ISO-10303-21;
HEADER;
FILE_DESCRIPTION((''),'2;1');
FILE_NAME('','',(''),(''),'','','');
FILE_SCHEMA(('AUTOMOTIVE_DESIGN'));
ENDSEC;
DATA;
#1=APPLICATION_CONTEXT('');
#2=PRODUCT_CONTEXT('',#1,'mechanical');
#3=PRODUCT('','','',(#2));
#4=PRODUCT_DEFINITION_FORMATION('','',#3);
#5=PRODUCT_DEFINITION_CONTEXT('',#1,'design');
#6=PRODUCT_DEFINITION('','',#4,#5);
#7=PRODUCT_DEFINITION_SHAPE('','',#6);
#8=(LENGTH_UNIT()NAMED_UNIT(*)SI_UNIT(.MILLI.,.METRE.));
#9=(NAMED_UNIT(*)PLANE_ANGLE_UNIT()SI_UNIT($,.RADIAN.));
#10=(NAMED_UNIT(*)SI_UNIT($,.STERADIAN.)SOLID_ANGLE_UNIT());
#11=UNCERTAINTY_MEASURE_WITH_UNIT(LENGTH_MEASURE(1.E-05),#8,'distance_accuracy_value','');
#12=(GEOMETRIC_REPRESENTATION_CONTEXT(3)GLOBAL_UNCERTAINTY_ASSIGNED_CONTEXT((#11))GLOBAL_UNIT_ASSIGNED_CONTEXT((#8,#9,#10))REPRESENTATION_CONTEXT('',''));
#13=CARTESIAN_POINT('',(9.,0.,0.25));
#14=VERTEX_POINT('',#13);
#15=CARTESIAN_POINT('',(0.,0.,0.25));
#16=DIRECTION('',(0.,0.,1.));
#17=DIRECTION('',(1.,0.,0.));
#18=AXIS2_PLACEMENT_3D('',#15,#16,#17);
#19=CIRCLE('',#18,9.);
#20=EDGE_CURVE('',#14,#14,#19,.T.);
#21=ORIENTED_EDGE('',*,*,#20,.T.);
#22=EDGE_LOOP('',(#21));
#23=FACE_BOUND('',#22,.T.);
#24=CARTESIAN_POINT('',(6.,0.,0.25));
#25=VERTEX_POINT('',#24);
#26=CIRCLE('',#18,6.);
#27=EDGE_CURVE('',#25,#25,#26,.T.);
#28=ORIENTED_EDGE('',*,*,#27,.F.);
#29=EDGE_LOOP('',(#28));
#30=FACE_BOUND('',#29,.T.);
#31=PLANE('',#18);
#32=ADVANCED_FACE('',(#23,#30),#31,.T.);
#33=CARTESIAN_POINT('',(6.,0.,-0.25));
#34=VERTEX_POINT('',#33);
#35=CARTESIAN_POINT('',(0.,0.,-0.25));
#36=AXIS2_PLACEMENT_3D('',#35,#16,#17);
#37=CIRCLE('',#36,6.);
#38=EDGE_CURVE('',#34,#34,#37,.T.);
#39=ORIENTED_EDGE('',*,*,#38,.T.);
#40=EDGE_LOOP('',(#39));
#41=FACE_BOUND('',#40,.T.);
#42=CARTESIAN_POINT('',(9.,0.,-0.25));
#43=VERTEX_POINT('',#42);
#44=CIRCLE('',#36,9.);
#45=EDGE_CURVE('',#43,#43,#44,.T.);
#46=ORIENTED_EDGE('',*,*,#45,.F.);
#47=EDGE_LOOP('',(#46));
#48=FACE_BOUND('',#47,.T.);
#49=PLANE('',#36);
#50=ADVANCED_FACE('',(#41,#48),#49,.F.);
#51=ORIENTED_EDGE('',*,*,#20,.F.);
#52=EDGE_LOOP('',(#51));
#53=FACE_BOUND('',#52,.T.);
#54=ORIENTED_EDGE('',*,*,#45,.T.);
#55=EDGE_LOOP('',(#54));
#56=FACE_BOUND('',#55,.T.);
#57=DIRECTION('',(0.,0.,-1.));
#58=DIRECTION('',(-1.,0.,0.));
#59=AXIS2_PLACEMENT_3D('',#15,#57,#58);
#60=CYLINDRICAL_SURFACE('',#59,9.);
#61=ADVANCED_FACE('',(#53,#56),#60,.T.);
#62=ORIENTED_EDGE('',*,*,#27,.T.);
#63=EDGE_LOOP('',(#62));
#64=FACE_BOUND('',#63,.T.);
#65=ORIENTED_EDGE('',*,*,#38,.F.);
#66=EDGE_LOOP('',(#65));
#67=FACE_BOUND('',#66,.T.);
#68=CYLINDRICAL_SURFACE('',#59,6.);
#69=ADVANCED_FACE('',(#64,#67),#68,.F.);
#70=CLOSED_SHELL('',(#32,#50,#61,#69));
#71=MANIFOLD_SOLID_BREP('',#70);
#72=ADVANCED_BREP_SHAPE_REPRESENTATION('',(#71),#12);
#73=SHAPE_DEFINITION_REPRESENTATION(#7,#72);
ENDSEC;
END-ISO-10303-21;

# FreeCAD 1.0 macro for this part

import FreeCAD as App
import Part
import Sketcher
Q = App.Units.Quantity

doc = App.newDocument("Part")
params = doc.addObject("Spreadsheet::Sheet", "Params")
for row, (alias, value) in enumerate([
    ("sketch1_diameter", "18 mm"),
    ("sketch1_diameter2", "12 mm"),
    ("pad1_length", "0.5 mm"),
], start=1):
    params.set(f"A{row}", alias)
    params.set(f"B{row}", "=" + value)
    params.setAlias(f"B{row}", alias)

body = doc.addObject("PartDesign::Body", "Body")

# Sketch on XY plane
sketch1 = body.newObject("Sketcher::SketchObject", "Sketch")
sketch1.AttachmentSupport = (doc.getObject("XY_Plane"), [""])
sketch1.MapMode = "FlatFace"
sketch1.addGeometry([
    Part.Circle(App.Vector(0, 0, 0), App.Vector(0, 0, 1), 9),
    Part.Circle(App.Vector(0, 0, 0), App.Vector(0, 0, 1), 6),
], False)
sketch1.addConstraint([
    Sketcher.Constraint("Coincident", 0, 3, -1, 1),
    Sketcher.Constraint("Coincident", 1, 3, -1, 1),
    Sketcher.Constraint("Diameter", 0, Q("18 mm")),
    Sketcher.Constraint("Diameter", 1, Q("12 mm")),
])
sketch1.setExpression("Constraints[2]", "Params.sketch1_diameter")
sketch1.setExpression("Constraints[3]", "Params.sketch1_diameter2")
pad1 = body.newObject("PartDesign::Pad", "Pad")
pad1.Profile = sketch1
pad1.setExpression("Length", "Params.pad1_length")
pad1.Midplane = True

doc.recompute()
